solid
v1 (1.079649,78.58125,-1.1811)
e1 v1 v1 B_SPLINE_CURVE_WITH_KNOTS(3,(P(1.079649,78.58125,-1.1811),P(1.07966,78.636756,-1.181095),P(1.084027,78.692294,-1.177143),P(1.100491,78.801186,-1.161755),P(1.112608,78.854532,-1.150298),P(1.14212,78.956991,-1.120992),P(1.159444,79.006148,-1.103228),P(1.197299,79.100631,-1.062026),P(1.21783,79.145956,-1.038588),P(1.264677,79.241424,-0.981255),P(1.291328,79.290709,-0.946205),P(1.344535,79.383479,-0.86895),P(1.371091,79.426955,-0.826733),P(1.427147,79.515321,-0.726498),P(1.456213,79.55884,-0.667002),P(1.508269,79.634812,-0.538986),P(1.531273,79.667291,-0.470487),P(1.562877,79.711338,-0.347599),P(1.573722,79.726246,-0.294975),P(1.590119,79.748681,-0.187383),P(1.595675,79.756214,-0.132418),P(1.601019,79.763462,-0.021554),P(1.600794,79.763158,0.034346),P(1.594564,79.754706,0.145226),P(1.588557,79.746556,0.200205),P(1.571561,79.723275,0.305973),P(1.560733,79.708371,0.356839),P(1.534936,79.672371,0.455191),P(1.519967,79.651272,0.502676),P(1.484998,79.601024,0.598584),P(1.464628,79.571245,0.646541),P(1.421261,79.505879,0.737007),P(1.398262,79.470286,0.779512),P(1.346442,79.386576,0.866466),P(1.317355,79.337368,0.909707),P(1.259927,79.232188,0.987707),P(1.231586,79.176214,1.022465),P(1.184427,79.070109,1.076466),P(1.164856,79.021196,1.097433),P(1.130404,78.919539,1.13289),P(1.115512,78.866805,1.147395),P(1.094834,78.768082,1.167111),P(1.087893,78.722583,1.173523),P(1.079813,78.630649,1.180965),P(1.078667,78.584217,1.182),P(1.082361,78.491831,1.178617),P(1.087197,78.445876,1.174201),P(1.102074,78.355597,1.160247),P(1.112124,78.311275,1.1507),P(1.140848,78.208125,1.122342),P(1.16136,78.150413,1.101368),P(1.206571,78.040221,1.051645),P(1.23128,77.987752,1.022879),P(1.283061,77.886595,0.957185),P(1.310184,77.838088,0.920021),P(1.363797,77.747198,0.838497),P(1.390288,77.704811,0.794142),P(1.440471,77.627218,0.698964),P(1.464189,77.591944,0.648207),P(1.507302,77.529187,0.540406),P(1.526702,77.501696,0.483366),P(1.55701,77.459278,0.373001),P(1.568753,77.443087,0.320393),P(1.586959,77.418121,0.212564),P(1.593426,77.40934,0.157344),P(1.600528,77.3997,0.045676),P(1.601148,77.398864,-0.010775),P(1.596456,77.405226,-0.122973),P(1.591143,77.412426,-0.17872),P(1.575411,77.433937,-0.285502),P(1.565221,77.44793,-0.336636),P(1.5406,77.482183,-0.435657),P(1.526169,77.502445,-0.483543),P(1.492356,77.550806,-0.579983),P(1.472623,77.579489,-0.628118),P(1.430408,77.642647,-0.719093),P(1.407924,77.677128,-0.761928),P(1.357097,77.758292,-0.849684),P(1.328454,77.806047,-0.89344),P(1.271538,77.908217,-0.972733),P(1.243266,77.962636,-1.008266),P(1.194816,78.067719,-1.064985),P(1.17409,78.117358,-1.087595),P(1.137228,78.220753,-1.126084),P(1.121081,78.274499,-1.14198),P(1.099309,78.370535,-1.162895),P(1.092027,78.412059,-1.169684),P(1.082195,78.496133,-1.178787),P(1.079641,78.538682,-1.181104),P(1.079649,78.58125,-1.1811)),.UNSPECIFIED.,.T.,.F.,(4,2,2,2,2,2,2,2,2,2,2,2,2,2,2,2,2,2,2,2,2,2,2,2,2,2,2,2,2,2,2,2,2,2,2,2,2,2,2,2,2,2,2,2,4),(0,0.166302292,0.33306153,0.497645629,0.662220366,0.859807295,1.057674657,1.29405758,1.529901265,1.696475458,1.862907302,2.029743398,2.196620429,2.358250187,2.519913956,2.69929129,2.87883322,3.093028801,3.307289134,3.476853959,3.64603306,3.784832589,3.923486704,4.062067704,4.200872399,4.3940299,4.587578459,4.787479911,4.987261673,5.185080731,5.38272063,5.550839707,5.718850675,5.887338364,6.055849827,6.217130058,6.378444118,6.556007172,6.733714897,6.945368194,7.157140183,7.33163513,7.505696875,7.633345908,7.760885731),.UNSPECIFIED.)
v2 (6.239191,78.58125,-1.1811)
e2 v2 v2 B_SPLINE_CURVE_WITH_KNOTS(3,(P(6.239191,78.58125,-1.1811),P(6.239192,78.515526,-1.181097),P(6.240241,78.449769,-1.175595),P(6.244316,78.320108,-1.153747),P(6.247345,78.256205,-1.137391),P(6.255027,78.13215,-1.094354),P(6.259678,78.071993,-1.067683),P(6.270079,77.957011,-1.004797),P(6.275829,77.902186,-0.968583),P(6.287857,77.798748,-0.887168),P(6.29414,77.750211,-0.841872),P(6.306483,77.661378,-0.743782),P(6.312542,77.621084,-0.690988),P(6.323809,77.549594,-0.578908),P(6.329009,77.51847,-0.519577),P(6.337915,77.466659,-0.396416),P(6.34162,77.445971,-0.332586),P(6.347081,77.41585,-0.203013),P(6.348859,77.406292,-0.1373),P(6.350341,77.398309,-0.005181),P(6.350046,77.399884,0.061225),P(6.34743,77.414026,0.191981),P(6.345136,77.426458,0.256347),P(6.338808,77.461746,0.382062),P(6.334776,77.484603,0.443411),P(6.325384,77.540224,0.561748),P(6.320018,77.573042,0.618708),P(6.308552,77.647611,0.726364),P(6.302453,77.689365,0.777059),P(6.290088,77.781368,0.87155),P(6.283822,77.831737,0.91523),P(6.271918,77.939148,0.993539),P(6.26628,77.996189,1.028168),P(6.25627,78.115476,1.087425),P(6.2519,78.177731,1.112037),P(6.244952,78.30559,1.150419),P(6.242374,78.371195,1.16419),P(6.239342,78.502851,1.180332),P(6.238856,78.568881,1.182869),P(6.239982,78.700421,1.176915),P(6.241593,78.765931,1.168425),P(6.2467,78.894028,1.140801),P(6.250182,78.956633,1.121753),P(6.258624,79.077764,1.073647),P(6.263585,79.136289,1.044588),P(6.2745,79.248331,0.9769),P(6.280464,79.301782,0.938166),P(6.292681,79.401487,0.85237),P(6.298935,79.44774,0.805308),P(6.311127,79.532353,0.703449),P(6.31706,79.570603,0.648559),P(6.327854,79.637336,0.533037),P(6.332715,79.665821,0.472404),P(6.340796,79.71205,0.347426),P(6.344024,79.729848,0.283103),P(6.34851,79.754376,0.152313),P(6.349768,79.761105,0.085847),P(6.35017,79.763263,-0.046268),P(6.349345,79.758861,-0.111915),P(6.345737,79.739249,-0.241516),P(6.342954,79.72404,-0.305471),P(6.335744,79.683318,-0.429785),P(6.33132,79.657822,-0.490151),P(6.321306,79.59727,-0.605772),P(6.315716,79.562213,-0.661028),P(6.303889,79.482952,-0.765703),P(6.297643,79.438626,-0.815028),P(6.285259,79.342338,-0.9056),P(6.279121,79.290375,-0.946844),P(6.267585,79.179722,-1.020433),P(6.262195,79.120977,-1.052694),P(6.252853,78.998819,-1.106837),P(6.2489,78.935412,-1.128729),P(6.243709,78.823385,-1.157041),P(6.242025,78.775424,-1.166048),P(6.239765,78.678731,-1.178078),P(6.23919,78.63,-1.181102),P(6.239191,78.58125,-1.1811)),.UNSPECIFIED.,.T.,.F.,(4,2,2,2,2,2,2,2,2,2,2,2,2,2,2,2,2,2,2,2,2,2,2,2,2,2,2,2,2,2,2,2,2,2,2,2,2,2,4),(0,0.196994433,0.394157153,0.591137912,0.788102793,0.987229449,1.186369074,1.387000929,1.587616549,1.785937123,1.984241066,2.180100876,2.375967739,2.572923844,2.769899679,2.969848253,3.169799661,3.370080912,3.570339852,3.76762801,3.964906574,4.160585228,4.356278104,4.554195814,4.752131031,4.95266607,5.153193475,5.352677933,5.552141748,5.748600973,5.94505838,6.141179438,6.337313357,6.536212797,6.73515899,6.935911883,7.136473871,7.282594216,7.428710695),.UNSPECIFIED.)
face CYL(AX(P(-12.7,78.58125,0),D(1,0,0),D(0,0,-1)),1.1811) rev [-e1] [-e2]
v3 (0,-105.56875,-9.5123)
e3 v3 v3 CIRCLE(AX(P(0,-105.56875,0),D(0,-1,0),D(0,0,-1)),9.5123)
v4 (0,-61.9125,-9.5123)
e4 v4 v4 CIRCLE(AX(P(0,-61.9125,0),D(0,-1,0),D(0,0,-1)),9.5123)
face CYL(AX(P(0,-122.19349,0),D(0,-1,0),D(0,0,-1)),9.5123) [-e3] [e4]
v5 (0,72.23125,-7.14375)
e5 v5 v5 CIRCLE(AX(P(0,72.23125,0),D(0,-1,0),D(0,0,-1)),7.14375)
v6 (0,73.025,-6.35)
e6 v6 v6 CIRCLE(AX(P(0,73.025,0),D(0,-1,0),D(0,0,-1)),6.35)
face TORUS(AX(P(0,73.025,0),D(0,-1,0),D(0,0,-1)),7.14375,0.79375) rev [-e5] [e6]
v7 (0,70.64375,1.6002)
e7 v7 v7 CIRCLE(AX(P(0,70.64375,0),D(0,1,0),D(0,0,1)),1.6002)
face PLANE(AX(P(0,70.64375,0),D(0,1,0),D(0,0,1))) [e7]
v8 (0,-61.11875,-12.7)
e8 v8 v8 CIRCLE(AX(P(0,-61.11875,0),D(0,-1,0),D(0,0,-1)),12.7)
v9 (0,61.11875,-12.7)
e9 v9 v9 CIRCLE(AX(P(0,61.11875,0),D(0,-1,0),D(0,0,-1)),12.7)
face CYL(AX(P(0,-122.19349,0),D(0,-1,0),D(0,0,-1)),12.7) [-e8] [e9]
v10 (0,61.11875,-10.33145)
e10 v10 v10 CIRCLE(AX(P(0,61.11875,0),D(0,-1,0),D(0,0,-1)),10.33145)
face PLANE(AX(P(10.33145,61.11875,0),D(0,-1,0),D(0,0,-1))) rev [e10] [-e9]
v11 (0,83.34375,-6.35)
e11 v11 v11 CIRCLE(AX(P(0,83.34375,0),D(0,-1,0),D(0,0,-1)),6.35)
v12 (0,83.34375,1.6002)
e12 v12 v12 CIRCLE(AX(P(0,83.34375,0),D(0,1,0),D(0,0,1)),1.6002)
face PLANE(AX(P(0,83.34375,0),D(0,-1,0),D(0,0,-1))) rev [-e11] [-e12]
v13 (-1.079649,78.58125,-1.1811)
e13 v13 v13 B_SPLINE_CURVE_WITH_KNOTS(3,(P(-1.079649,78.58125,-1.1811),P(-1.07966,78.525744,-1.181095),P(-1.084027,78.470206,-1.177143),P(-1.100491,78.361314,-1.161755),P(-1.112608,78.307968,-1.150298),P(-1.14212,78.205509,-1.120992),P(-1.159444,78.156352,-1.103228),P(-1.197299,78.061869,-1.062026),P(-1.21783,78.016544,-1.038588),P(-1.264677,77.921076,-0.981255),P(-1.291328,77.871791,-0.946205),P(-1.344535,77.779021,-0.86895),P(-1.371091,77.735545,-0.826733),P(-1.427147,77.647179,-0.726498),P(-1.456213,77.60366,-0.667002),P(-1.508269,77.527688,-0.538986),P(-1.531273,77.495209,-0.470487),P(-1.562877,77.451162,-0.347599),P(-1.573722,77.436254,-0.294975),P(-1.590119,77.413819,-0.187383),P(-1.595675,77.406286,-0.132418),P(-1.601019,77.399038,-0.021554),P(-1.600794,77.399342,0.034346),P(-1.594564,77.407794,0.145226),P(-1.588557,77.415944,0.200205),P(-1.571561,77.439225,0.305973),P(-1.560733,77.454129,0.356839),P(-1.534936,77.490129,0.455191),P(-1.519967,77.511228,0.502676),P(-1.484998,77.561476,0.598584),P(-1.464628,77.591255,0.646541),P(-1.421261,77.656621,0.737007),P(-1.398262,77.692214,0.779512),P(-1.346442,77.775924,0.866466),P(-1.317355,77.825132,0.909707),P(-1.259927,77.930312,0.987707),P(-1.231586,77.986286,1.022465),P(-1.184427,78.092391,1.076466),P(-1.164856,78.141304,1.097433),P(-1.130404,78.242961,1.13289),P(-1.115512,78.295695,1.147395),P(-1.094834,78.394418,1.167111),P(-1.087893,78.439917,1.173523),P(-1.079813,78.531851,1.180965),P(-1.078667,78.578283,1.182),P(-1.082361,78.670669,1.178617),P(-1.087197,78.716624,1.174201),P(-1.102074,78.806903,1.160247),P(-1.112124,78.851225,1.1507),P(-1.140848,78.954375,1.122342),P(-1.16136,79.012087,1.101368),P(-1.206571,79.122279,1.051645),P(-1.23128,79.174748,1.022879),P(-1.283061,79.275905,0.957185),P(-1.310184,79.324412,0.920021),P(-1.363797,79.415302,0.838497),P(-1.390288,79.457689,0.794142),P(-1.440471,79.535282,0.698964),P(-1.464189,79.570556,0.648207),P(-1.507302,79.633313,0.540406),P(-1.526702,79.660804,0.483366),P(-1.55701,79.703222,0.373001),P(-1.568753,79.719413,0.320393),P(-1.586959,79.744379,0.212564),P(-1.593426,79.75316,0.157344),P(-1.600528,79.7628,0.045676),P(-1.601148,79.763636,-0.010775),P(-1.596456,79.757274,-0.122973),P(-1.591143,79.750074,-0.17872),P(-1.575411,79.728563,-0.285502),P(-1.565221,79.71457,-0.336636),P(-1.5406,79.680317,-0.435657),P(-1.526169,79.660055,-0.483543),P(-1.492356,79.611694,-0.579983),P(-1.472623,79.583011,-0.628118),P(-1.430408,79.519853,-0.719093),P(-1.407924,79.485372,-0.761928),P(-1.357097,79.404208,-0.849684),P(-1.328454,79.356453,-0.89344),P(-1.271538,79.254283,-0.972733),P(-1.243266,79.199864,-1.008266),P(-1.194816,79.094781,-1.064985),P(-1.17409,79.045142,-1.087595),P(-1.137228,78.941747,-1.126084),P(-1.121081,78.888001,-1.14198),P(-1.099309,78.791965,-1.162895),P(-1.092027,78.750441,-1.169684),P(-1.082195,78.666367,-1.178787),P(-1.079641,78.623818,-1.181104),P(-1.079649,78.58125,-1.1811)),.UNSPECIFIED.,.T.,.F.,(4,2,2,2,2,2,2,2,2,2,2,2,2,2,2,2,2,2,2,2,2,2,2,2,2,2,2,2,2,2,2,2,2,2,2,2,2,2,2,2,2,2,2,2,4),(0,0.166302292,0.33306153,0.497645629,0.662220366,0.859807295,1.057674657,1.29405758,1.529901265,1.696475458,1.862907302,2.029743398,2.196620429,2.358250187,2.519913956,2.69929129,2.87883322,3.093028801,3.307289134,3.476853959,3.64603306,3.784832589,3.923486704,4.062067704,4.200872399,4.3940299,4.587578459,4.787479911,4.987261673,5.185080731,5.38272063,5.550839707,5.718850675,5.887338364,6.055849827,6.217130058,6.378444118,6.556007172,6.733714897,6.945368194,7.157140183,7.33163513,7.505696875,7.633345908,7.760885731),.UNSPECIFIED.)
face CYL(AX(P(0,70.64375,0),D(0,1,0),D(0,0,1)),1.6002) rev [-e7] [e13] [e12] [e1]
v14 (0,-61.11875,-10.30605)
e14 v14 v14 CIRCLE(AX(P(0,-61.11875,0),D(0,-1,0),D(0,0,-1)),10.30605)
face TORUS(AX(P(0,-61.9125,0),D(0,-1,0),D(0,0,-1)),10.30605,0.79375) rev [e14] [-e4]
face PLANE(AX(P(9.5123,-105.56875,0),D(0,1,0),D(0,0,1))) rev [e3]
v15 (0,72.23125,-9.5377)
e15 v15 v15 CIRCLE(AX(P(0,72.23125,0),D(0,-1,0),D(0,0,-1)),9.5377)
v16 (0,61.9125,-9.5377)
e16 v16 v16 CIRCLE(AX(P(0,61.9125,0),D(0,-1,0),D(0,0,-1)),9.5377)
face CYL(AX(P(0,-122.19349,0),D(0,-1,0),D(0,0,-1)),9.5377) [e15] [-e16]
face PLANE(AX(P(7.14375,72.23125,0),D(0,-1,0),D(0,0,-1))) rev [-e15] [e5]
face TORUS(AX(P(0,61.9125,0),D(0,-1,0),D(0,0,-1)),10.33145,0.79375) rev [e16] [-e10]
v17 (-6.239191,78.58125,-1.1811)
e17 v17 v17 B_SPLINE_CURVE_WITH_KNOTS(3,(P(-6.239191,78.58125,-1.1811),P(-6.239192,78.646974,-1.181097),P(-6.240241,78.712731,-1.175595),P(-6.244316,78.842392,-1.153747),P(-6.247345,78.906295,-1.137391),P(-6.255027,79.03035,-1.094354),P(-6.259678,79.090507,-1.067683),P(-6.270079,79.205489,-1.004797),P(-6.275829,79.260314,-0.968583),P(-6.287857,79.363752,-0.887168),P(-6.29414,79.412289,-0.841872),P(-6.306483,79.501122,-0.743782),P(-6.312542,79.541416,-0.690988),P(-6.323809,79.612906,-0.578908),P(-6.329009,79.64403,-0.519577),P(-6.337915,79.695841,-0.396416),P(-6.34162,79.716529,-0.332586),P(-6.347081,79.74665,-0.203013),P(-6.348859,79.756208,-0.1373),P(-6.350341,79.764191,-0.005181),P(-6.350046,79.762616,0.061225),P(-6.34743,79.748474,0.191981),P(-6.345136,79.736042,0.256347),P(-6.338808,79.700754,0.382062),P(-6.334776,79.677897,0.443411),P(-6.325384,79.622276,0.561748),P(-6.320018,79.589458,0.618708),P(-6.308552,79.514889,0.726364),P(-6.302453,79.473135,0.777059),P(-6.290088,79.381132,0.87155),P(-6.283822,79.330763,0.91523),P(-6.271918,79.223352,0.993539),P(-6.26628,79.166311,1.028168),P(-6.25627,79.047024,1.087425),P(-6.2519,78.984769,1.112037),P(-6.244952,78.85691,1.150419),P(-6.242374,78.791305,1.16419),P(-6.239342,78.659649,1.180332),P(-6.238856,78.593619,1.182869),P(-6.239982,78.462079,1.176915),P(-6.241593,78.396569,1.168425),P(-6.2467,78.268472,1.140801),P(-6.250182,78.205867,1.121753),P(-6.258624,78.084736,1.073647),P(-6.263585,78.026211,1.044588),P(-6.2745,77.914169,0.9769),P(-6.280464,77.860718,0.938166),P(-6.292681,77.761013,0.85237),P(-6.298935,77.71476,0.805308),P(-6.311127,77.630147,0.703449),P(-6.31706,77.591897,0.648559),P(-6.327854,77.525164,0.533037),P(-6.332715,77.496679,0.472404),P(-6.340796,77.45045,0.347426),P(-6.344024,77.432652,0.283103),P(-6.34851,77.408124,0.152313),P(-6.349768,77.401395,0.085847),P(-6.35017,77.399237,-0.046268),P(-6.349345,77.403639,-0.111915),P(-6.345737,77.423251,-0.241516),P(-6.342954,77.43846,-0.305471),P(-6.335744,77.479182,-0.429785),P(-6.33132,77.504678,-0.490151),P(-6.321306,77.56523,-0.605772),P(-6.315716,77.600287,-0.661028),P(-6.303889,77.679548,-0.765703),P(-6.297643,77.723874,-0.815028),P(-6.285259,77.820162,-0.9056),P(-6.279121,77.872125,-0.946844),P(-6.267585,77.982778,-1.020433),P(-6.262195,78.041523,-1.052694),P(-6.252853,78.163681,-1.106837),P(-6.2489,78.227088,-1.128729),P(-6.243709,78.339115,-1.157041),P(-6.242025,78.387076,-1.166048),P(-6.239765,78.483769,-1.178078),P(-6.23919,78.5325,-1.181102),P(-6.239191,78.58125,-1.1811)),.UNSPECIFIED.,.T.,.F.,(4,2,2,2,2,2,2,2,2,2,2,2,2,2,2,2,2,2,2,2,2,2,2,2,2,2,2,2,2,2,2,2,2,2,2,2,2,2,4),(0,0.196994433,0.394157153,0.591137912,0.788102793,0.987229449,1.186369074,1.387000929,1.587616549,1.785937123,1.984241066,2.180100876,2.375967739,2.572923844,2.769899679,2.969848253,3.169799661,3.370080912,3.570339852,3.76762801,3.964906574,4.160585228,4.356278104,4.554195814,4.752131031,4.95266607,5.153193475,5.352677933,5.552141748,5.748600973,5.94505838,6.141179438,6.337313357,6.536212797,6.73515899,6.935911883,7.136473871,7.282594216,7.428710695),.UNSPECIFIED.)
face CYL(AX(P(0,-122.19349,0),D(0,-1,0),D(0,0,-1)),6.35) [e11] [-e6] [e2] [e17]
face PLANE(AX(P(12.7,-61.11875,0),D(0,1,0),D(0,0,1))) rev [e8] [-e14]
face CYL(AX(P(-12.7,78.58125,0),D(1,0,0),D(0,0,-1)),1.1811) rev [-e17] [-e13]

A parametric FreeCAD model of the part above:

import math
import FreeCAD as App
import Part
import Sketcher
Q = App.Units.Quantity

doc = App.newDocument("Part")
body = doc.addObject("PartDesign::Body", "Body")

# Sketch on XY plane
sketch1 = doc.addObject("Sketcher::SketchObject", "Sketch")
body.addObject(sketch1)
sketch1.AttachmentSupport = (doc.XY_Plane, [""])
sketch1.MapMode = "FlatFace"
sketch1.addGeometry([
    Part.LineSegment(App.Vector(0, 83.34375, 0), App.Vector(-6.35, 83.34375, 0)),  # 0
    Part.LineSegment(App.Vector(-6.35, 83.34375, 0), App.Vector(-6.35, 73.025, 0)),  # 1
    Part.ArcOfCircle(Part.Circle(App.Vector(-7.14375, 73.025, 0), App.Vector(0, 0, 1), 0.79375), math.radians(-90), math.radians(0)),  # 2
    Part.LineSegment(App.Vector(-7.14375, 72.23125, 0), App.Vector(-9.5377, 72.23125, 0)),  # 3
    Part.LineSegment(App.Vector(-9.5377, 72.23125, 0), App.Vector(-9.5377, 61.9125, 0)),  # 4
    Part.ArcOfCircle(Part.Circle(App.Vector(-10.33145, 61.9125, 0), App.Vector(0, 0, 1), 0.79375), math.radians(-90), math.radians(0)),  # 5
    Part.LineSegment(App.Vector(-10.33145, 61.11875, 0), App.Vector(-12.7, 61.11875, 0)),  # 6
    Part.LineSegment(App.Vector(-12.7, 61.11875, 0), App.Vector(-12.7, -61.11875, 0)),  # 7
    Part.LineSegment(App.Vector(-12.7, -61.11875, 0), App.Vector(-10.30605, -61.11875, 0)),  # 8
    Part.ArcOfCircle(Part.Circle(App.Vector(-10.30605, -61.9125, 0), App.Vector(0, 0, 1), 0.79375), math.radians(0), math.radians(90)),  # 9
    Part.LineSegment(App.Vector(-9.5123, -61.9125, 0), App.Vector(-9.5123, -105.56875, 0)),  # 10
    Part.LineSegment(App.Vector(-9.5123, -105.56875, 0), App.Vector(0, -105.56875, 0)),  # 11
    Part.LineSegment(App.Vector(0, -105.56875, 0), App.Vector(0, 83.34375, 0)),  # 12
], False)
sketch1.addConstraint([
    Sketcher.Constraint("Coincident", 0, 2, 1, 1),
    Sketcher.Constraint("Tangent", 1, 2, 2, 2),
    Sketcher.Constraint("Tangent", 2, 1, 3, 1),
    Sketcher.Constraint("Coincident", 3, 2, 4, 1),
    Sketcher.Constraint("Tangent", 4, 2, 5, 2),
    Sketcher.Constraint("Tangent", 5, 1, 6, 1),
    Sketcher.Constraint("Coincident", 6, 2, 7, 1),
    Sketcher.Constraint("Coincident", 7, 2, 8, 1),
    Sketcher.Constraint("Tangent", 8, 2, 9, 2),
    Sketcher.Constraint("Tangent", 9, 1, 10, 1),
    Sketcher.Constraint("Coincident", 10, 2, 11, 1),
    Sketcher.Constraint("Coincident", 11, 2, 12, 1),
    Sketcher.Constraint("Coincident", 12, 2, 0, 1),
    Sketcher.Constraint("Horizontal", 0),
    Sketcher.Constraint("Vertical", 1),
    Sketcher.Constraint("Horizontal", 3),
    Sketcher.Constraint("Vertical", 4),
    Sketcher.Constraint("Horizontal", 6),
    Sketcher.Constraint("Vertical", 7),
    Sketcher.Constraint("Horizontal", 8),
    Sketcher.Constraint("Vertical", 10),
    Sketcher.Constraint("Horizontal", 11),
    Sketcher.Constraint("Vertical", 12),
    Sketcher.Constraint("Equal", 2, 5),
    Sketcher.Constraint("Equal", 5, 9),
    Sketcher.Constraint("PointOnObject", 11, 2, -2),
    Sketcher.Constraint("Equal", 3, 8),
    Sketcher.Constraint("Equal", 1, 4),
    Sketcher.Constraint("Radius", 2, Q("0.03125 in")),
    Sketcher.Constraint("DistanceX", 0, 2, 0, 1, Q("0.25 in")),
    Sketcher.Constraint("DistanceX", 6, 2, -1, 1, Q("0.5 in")),
    Sketcher.Constraint("DistanceY", 1, 2, 1, 1, Q("0.40625 in")),
    Sketcher.Constraint("DistanceY", 7, 2, 7, 1, Q("4.8125 in")),
    Sketcher.Constraint("DistanceY", 10, 2, 10, 1, Q("1.71875 in")),
    Sketcher.Constraint("DistanceX", 11, 1, 11, 2, Q("0.3745 in")),
    Sketcher.Constraint("DistanceY", -1, 1, 2, 3, Q("2.875 in")),
])
revolution = doc.addObject("PartDesign::Revolution", "Revolution")
body.addObject(revolution)
revolution.Profile = sketch1
revolution.ReferenceAxis = (sketch1, ["V_Axis"])
revolution.Angle = 360

# Sketch on XZ plane
sketch2 = doc.addObject("Sketcher::SketchObject", "Sketch001")
body.addObject(sketch2)
sketch2.AttachmentSupport = (doc.XZ_Plane, [""])
sketch2.MapMode = "FlatFace"
sketch2.AttachmentOffset = App.Placement(App.Vector(0, 0, -3.28125 * 25.4), App.Rotation())
sketch2.addGeometry(Part.Circle(App.Vector(0, 0, 0), App.Vector(0, 0, 1), 1.6002), False)
sketch2.addConstraint([
    Sketcher.Constraint("Coincident", 0, 3, -1, 1),
    Sketcher.Constraint("Diameter", 0, Q("0.126 in")),
])
pocket1 = doc.addObject("PartDesign::Pocket", "Pocket")
body.addObject(pocket1)
pocket1.Profile = sketch2
pocket1.Length = Q("0.5 in")
pocket1.Reversed = True

# Sketch on YZ plane
sketch3 = doc.addObject("Sketcher::SketchObject", "Sketch002")
body.addObject(sketch3)
sketch3.AttachmentSupport = (doc.YZ_Plane, [""])
sketch3.MapMode = "FlatFace"
sketch3.addGeometry(Part.Circle(App.Vector(78.58125, 0, 0), App.Vector(0, 0, 1), 1.1811), False)
sketch3.addConstraint([
    Sketcher.Constraint("PointOnObject", 0, 3, -1),
    Sketcher.Constraint("Diameter", 0, Q("0.093 in")),
    Sketcher.Constraint("DistanceX", -1, 1, 0, 3, Q("3.09375 in")),
])
pocket2 = doc.addObject("PartDesign::Pocket", "Pocket001")
body.addObject(pocket2)
pocket2.Profile = sketch3
pocket2.Length = Q("1 in")
pocket2.Midplane = True

doc.recompute()
